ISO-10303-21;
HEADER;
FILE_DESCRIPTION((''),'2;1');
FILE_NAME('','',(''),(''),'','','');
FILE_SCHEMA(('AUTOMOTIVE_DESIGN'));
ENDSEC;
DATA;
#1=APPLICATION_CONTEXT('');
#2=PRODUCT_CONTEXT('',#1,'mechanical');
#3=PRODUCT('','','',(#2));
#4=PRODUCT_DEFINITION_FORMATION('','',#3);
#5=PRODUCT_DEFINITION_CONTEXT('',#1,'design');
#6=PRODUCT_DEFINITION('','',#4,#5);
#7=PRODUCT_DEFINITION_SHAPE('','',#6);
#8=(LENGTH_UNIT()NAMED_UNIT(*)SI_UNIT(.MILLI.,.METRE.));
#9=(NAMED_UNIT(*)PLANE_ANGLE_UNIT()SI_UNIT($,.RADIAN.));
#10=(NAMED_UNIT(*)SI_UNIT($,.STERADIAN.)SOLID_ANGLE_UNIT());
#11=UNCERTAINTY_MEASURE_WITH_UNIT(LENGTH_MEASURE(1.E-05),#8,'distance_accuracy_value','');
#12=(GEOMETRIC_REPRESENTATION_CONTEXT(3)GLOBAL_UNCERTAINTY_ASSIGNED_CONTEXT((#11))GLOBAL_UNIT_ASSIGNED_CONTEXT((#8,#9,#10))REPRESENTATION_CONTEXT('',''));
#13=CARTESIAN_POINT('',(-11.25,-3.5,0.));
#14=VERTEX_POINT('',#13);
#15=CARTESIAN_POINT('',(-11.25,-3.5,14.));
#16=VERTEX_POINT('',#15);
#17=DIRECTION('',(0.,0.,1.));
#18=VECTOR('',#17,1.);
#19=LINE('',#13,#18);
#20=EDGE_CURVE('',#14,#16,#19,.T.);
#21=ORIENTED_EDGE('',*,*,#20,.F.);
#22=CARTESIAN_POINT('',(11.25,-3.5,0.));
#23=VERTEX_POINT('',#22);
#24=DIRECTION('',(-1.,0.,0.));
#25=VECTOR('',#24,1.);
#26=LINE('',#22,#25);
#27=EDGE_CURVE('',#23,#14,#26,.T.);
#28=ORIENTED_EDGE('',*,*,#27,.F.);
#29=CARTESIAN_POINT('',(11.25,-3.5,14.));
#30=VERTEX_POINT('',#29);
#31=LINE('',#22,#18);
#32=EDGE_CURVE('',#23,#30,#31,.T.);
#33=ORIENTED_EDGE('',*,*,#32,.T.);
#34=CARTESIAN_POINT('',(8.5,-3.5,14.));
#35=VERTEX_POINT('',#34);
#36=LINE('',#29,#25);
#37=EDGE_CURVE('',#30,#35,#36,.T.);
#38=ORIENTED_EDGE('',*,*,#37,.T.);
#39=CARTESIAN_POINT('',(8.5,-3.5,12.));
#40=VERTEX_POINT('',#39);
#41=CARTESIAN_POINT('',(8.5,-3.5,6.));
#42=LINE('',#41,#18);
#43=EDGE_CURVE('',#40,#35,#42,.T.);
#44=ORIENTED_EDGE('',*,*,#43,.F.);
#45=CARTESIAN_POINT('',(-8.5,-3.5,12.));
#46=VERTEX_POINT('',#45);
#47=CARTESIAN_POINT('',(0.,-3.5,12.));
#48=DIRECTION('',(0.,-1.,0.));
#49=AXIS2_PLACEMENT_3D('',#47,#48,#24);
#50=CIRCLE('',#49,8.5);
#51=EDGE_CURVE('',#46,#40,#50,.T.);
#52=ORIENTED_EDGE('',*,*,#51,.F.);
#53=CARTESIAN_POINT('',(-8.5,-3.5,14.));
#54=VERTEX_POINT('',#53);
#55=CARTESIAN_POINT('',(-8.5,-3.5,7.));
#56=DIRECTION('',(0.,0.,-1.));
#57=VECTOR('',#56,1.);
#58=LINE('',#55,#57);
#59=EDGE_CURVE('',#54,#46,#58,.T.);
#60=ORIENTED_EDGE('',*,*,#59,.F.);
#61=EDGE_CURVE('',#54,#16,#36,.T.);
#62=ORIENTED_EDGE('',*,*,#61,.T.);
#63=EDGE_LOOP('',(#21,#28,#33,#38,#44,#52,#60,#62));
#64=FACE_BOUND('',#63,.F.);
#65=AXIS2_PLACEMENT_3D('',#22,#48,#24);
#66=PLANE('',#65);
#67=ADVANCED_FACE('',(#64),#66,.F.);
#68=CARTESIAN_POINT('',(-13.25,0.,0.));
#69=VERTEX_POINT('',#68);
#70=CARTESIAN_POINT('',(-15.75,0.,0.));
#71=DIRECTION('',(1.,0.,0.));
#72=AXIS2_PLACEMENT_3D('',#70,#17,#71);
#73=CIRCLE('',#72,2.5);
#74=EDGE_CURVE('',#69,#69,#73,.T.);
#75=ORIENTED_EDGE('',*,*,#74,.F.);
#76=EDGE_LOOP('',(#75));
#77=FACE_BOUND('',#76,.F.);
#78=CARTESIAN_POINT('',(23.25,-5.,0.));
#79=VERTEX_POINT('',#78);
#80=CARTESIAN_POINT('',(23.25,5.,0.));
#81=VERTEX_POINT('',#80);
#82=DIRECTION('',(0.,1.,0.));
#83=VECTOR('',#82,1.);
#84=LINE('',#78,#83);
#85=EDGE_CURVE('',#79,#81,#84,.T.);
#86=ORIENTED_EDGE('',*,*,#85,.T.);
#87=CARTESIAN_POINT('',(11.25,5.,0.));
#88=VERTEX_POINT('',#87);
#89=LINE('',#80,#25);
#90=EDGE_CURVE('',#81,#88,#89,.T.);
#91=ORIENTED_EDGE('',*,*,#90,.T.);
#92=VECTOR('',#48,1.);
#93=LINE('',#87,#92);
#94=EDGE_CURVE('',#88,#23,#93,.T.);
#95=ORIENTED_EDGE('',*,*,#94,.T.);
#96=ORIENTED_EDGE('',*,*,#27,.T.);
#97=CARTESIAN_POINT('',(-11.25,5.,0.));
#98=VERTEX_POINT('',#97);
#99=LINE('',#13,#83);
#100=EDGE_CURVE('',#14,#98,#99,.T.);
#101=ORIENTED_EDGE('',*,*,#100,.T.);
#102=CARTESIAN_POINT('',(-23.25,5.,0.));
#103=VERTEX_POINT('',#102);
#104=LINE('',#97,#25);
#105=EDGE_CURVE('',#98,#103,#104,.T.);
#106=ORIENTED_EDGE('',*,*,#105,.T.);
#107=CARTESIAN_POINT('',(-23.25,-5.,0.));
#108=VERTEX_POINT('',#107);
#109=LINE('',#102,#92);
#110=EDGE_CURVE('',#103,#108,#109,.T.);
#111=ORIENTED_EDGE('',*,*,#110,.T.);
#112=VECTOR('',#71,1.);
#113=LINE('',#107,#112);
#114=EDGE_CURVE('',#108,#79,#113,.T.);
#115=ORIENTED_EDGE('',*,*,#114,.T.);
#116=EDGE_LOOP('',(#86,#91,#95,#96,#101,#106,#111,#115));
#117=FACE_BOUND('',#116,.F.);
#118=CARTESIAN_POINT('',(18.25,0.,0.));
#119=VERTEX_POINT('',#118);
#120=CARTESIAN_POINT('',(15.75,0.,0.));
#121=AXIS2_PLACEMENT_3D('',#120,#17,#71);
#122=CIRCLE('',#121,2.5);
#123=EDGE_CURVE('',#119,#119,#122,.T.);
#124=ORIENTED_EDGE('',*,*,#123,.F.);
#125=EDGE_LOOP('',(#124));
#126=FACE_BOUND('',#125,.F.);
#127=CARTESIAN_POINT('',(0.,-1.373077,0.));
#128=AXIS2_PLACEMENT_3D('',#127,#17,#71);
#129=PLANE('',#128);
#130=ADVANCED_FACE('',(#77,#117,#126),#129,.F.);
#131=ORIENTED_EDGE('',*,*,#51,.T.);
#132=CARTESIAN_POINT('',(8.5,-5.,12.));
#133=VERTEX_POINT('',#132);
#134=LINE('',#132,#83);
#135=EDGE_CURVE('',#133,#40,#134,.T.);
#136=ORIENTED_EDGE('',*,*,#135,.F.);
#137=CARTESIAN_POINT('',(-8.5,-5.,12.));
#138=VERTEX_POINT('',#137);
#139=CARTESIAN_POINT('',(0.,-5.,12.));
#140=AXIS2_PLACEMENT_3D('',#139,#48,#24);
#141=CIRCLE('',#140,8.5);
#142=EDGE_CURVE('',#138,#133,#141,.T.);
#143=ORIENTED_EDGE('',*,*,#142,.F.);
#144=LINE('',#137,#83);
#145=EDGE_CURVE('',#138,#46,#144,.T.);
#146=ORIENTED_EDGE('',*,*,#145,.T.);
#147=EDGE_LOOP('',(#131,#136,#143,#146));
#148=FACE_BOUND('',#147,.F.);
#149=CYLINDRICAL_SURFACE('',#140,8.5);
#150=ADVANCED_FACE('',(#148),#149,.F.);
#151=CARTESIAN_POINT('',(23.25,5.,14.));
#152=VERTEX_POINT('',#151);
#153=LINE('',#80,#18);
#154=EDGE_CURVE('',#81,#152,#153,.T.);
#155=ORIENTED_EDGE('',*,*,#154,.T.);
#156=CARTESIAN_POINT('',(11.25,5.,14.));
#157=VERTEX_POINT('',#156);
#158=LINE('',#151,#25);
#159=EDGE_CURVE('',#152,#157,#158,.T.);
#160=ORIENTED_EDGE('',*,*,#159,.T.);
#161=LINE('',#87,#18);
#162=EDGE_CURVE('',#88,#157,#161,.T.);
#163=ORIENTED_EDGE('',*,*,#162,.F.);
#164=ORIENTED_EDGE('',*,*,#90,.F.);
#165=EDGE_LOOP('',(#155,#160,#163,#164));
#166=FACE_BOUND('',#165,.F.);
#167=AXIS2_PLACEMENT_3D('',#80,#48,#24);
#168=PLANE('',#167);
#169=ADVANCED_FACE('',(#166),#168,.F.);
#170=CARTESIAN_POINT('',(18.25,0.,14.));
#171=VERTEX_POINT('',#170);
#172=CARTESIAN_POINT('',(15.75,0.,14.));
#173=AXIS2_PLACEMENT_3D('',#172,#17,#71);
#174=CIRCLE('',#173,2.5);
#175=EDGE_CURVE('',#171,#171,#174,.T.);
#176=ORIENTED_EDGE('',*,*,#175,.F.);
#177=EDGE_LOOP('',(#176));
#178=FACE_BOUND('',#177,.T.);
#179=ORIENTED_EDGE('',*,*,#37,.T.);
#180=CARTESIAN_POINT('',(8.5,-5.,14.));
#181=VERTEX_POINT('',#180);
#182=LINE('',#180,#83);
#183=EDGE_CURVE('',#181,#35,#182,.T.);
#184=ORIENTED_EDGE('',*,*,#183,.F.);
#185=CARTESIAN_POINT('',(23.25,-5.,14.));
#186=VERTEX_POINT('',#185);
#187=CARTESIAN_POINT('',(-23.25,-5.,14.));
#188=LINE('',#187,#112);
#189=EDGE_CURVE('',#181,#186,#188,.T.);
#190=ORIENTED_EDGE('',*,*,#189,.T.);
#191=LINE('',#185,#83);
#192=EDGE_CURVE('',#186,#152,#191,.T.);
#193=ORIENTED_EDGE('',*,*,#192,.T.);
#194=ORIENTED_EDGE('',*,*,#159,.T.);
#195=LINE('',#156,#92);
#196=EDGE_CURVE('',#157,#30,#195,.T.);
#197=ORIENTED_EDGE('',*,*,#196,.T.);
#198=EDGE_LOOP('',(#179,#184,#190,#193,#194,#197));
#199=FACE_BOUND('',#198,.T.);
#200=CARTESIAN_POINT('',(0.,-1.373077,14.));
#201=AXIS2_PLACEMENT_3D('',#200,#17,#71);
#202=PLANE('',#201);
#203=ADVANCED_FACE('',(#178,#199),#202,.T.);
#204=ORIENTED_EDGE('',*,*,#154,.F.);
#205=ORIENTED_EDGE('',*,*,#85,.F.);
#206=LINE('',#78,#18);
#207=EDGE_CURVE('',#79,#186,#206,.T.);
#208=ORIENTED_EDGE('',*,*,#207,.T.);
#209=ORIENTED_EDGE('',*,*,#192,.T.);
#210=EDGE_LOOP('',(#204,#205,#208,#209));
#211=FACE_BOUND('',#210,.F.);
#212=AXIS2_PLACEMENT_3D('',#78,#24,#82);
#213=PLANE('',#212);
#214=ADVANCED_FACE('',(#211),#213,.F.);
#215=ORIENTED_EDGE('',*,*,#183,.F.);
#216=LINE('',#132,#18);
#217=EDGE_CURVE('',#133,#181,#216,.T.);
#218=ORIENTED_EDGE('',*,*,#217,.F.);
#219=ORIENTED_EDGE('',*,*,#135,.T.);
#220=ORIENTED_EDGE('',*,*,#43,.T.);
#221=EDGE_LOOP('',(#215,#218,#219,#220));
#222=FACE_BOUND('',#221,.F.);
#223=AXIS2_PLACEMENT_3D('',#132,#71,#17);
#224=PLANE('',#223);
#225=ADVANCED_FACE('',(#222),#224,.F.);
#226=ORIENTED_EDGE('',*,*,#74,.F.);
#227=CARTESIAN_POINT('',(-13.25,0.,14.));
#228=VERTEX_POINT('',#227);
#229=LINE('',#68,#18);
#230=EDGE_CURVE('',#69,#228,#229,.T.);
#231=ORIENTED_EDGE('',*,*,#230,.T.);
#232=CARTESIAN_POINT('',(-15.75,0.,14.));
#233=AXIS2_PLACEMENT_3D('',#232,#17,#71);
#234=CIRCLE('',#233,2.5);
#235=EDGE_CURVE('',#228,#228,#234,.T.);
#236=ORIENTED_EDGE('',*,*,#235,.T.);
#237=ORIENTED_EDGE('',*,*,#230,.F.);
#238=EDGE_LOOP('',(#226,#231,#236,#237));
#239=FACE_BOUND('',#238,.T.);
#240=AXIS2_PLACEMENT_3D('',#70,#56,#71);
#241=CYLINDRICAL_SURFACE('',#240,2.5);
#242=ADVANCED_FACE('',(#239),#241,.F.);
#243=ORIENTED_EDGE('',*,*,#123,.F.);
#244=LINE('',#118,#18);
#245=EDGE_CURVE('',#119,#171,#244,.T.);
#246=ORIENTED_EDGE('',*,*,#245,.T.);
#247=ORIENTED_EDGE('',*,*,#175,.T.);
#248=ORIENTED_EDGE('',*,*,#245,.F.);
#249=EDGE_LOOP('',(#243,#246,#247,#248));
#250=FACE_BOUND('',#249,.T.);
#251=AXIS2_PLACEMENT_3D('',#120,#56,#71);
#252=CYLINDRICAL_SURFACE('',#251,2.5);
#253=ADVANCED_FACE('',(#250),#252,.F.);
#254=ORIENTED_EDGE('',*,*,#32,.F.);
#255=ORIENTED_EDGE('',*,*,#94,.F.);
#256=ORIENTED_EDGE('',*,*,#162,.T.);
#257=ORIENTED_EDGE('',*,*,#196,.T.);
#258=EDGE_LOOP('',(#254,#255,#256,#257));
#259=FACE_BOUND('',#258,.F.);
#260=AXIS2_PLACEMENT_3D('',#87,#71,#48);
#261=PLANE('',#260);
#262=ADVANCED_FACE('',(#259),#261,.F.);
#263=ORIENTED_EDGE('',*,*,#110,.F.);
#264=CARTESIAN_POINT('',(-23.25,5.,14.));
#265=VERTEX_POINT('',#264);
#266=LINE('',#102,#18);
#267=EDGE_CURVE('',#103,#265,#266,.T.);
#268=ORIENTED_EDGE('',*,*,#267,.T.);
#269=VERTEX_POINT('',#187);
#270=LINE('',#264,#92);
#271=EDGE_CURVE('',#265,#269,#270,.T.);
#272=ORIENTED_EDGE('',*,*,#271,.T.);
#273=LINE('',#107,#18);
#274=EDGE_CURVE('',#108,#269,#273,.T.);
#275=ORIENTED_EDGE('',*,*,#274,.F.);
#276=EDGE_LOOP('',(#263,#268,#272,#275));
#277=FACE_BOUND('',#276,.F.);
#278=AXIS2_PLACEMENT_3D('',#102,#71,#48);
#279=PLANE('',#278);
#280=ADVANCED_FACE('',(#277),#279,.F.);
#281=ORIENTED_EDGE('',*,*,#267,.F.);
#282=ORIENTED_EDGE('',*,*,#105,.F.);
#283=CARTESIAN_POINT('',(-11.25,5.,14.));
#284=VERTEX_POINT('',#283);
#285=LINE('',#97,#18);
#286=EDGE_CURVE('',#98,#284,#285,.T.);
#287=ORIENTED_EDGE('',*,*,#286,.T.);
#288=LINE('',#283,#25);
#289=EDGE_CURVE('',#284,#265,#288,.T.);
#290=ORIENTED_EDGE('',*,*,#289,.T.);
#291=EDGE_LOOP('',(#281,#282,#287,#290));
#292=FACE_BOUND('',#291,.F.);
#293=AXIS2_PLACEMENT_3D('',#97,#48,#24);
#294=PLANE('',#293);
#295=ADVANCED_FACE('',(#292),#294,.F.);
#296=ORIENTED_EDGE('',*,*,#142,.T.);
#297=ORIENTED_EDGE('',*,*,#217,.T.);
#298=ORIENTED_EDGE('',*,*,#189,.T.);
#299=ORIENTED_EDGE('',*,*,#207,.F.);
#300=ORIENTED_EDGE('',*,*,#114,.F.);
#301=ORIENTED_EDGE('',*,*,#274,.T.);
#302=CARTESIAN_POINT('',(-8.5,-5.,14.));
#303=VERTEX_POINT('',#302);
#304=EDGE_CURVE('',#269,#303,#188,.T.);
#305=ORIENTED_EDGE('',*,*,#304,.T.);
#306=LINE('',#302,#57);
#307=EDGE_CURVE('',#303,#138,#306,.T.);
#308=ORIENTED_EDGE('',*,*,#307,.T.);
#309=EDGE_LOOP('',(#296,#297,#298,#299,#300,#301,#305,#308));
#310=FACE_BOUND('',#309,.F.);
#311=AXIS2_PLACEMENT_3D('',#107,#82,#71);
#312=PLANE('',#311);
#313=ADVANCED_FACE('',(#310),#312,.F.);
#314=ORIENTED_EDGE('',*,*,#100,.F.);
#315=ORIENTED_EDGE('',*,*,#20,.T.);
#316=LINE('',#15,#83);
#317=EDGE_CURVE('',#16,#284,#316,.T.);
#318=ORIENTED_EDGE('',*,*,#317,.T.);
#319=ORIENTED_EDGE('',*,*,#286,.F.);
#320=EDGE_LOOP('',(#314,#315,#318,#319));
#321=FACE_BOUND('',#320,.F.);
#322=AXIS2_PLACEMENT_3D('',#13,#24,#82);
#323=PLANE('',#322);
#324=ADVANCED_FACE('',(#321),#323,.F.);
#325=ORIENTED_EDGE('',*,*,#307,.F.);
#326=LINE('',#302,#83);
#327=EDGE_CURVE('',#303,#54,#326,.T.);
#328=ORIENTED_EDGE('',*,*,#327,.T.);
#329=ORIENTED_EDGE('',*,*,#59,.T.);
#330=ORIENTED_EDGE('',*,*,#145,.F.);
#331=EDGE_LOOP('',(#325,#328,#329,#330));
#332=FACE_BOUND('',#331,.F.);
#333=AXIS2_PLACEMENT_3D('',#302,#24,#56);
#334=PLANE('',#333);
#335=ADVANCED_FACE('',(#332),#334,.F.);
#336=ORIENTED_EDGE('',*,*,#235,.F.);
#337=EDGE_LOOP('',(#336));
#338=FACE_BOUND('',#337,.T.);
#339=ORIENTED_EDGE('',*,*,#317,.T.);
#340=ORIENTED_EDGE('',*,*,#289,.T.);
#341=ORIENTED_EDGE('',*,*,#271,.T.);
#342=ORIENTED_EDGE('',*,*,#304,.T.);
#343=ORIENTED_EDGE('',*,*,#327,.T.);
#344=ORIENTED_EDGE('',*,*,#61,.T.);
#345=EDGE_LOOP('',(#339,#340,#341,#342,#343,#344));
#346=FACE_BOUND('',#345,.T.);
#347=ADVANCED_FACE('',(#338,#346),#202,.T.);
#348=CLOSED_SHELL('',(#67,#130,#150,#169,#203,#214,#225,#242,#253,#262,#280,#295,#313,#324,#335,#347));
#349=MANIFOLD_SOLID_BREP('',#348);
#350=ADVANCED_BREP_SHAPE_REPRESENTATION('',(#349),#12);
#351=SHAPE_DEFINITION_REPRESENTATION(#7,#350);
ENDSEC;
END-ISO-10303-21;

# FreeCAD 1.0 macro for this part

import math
import FreeCAD as App
import Part
import Sketcher
from FreeCAD import Vector

doc = App.newDocument("Part")
params = doc.addObject("Spreadsheet::Sheet", "Params")
for row, (alias, value) in enumerate([
    ("sketch1_diameter", "5 mm"),
    ("sketch1_width", "12 mm"),
    ("sketch1_height", "10 mm"),
    ("sketch1_width2", "46.5 mm"),
    ("sketch1_height2", "8.5 mm"),
    ("pad1_length", "14 mm"),
    ("sketch2_radius", "8.5 mm"),
    ("sketch2_height", "2 mm"),
    ("pocket1_length", "25 mm"),
], start=1):
    params.set(f"A{row}", alias)
    params.set(f"B{row}", "=" + value)
    params.setAlias(f"B{row}", alias)

body = doc.addObject("PartDesign::Body", "Body")

sketch1 = body.newObject("Sketcher::SketchObject", "Sketch")
sketch1.AttachmentSupport = (doc.getObject("XY_Plane"), [""])
sketch1.MapMode = "FlatFace"
sketch1.addGeometry([
    Part.LineSegment(Vector(-11.2, 5, 0), Vector(-23.2, 5, 0)),
    Part.LineSegment(Vector(-23.2, 5, 0), Vector(-23.2, -5, 0)),
    Part.LineSegment(Vector(-23.2, -5, 0), Vector(23.2, -5, 0)),
    Part.LineSegment(Vector(23.2, -5, 0), Vector(23.2, 5, 0)),
    Part.LineSegment(Vector(23.2, 5, 0), Vector(11.2, 5, 0)),
    Part.LineSegment(Vector(11.2, 5, 0), Vector(11.2, -3.5, 0)),
    Part.LineSegment(Vector(11.2, -3.5, 0), Vector(-11.2, -3.5, 0)),
    Part.LineSegment(Vector(-11.2, -3.5, 0), Vector(-11.2, 5, 0)),
    Part.Circle(Vector(-15.8, 0, 0), Vector(0, 0, 1), 2.5),
    Part.Circle(Vector(15.8, 0, 0), Vector(0, 0, 1), 2.5),
], False)
sketch1.addConstraint([
    Sketcher.Constraint("Coincident", 0, 2, 1, 1),
    Sketcher.Constraint("Coincident", 1, 2, 2, 1),
    Sketcher.Constraint("Coincident", 2, 2, 3, 1),
    Sketcher.Constraint("Coincident", 3, 2, 4, 1),
    Sketcher.Constraint("Coincident", 4, 2, 5, 1),
    Sketcher.Constraint("Coincident", 5, 2, 6, 1),
    Sketcher.Constraint("Coincident", 6, 2, 7, 1),
    Sketcher.Constraint("Coincident", 7, 2, 0, 1),
    Sketcher.Constraint("Horizontal", 0),
    Sketcher.Constraint("Vertical", 1),
    Sketcher.Constraint("Horizontal", 2),
    Sketcher.Constraint("Vertical", 3),
    Sketcher.Constraint("Horizontal", 4),
    Sketcher.Constraint("Vertical", 5),
    Sketcher.Constraint("Horizontal", 6),
    Sketcher.Constraint("Vertical", 7),
    Sketcher.Constraint("Equal", 8, 9),
    Sketcher.Constraint("Symmetric", 8, 3, 9, 3, -1, 1),
    Sketcher.Constraint("Symmetric", 0, 2, 2, 2, -1, 1),
    Sketcher.Constraint("Symmetric", 4, 2, 7, 2, -2),
    Sketcher.Constraint("PointOnObject", 8, 3, -1),
    Sketcher.Constraint("Diameter", 8, 5.0),
    Sketcher.Constraint("DistanceX", 0, 2, 0, 1, 12.0),
    Sketcher.Constraint("DistanceY", 1, 2, 1, 1, 10.0),
    Sketcher.Constraint("DistanceX", 2, 1, 2, 2, 46.5),
    Sketcher.Constraint("DistanceY", 5, 2, 5, 1, 8.5),
    Sketcher.Constraint("DistanceX", 0, 2, 9, 3, 39.0),
])
sketch1.setExpression("Constraints[21]", "Params.sketch1_diameter")
sketch1.setExpression("Constraints[22]", "Params.sketch1_width")
sketch1.setExpression("Constraints[23]", "Params.sketch1_height")
sketch1.setExpression("Constraints[24]", "Params.sketch1_width2")
sketch1.setExpression("Constraints[25]", "Params.sketch1_height2")
pad1 = body.newObject("PartDesign::Pad", "Pad")
pad1.Profile = sketch1
pad1.setExpression("Length", "Params.pad1_length")

sketch2 = body.newObject("Sketcher::SketchObject", "Sketch001")
sketch2.AttachmentSupport = (doc.getObject("XZ_Plane"), [""])
sketch2.MapMode = "FlatFace"
sketch2.AttachmentOffset = App.Placement(Vector(0, 0, 5), App.Rotation())
sketch2.addGeometry([
    Part.LineSegment(Vector(-8.5, 14, 0), Vector(-8.5, 12, 0)),
    Part.ArcOfCircle(Part.Circle(Vector(0, 12, 0), Vector(0, 0, 1), 8.5), math.radians(180), math.radians(360)),
    Part.LineSegment(Vector(8.5, 12, 0), Vector(8.5, 14, 0)),
    Part.LineSegment(Vector(8.5, 14, 0), Vector(-8.5, 14, 0)),
], False)
sketch2.addConstraint([
    Sketcher.Constraint("Tangent", 0, 2, 1, 1),
    Sketcher.Constraint("Tangent", 1, 2, 2, 1),
    Sketcher.Constraint("Coincident", 2, 2, 3, 1),
    Sketcher.Constraint("Coincident", 3, 2, 0, 1),
    Sketcher.Constraint("Vertical", 0),
    Sketcher.Constraint("Vertical", 2),
    Sketcher.Constraint("Horizontal", 3),
    Sketcher.Constraint("PointOnObject", 1, 3, -2),
    Sketcher.Constraint("Radius", 1, 8.5),
    Sketcher.Constraint("DistanceY", 0, 2, 0, 1, 2.0),
    Sketcher.Constraint("DistanceY", -1, 1, 1, 3, 12.0),
])
sketch2.setExpression("Constraints[8]", "Params.sketch2_radius")
sketch2.setExpression("Constraints[9]", "Params.sketch2_height")
pocket1 = body.newObject("PartDesign::Pocket", "Pocket")
pocket1.Profile = sketch2
pocket1.setExpression("Length", "Params.pocket1_length")

doc.recompute()
